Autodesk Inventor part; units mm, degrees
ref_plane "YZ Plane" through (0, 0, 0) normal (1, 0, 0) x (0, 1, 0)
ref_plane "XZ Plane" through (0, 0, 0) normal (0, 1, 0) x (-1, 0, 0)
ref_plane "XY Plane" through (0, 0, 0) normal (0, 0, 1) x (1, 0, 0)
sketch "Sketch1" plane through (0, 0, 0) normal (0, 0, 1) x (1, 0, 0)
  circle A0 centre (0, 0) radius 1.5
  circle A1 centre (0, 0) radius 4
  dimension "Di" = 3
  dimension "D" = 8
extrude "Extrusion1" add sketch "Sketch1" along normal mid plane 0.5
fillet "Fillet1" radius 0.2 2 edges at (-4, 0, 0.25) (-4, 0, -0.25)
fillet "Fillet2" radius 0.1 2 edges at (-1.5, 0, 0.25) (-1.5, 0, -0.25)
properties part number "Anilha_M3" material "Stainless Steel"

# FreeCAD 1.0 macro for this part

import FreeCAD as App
import Part
import Sketcher
Q = App.Units.Quantity


def edges_at(feature, points):
    """Names of the edges that pass closest to the given points."""
    edges = feature.Shape.Edges
    near = lambda p: min(range(len(edges)), key=lambda i: edges[i].distToShape(Part.Vertex(*p))[0])
    return sorted({f"Edge{near(p) + 1}" for p in points})

doc = App.newDocument("Part")
body = doc.addObject("PartDesign::Body", "Body")

sketch1 = body.newObject("Sketcher::SketchObject", "Sketch")
sketch1.AttachmentSupport = (doc.getObject("XY_Plane"), [""])
sketch1.MapMode = "FlatFace"
sketch1.addGeometry([
    Part.Circle(App.Vector(0, 0, 0), App.Vector(0, 0, 1), 4),
    Part.Circle(App.Vector(0, 0, 0), App.Vector(0, 0, 1), 1.5),
], False)
sketch1.addConstraint([
    Sketcher.Constraint("Coincident", 0, 3, -1, 1),
    Sketcher.Constraint("Coincident", 1, 3, -1, 1),
    Sketcher.Constraint("Diameter", 0, Q("8 mm")),
    Sketcher.Constraint("Diameter", 1, Q("3 mm")),
])
pad1 = body.newObject("PartDesign::Pad", "Pad")
pad1.Profile = sketch1
pad1.Length = 0.5
pad1.Midplane = True
doc.recompute()

fillet = body.newObject("PartDesign::Fillet", "Fillet")
fillet.Base = (pad1, edges_at(pad1, [(-4, 0, 0.25), (-4, 0, -0.25)]))
fillet.Radius = 0.2
doc.recompute()

fillet2 = body.newObject("PartDesign::Fillet", "Fillet001")
fillet2.Base = (fillet, edges_at(fillet, [(-1.5, 0, 0.25), (-1.5, 0, -0.25)]))
fillet2.Radius = 0.1

doc.recompute()
